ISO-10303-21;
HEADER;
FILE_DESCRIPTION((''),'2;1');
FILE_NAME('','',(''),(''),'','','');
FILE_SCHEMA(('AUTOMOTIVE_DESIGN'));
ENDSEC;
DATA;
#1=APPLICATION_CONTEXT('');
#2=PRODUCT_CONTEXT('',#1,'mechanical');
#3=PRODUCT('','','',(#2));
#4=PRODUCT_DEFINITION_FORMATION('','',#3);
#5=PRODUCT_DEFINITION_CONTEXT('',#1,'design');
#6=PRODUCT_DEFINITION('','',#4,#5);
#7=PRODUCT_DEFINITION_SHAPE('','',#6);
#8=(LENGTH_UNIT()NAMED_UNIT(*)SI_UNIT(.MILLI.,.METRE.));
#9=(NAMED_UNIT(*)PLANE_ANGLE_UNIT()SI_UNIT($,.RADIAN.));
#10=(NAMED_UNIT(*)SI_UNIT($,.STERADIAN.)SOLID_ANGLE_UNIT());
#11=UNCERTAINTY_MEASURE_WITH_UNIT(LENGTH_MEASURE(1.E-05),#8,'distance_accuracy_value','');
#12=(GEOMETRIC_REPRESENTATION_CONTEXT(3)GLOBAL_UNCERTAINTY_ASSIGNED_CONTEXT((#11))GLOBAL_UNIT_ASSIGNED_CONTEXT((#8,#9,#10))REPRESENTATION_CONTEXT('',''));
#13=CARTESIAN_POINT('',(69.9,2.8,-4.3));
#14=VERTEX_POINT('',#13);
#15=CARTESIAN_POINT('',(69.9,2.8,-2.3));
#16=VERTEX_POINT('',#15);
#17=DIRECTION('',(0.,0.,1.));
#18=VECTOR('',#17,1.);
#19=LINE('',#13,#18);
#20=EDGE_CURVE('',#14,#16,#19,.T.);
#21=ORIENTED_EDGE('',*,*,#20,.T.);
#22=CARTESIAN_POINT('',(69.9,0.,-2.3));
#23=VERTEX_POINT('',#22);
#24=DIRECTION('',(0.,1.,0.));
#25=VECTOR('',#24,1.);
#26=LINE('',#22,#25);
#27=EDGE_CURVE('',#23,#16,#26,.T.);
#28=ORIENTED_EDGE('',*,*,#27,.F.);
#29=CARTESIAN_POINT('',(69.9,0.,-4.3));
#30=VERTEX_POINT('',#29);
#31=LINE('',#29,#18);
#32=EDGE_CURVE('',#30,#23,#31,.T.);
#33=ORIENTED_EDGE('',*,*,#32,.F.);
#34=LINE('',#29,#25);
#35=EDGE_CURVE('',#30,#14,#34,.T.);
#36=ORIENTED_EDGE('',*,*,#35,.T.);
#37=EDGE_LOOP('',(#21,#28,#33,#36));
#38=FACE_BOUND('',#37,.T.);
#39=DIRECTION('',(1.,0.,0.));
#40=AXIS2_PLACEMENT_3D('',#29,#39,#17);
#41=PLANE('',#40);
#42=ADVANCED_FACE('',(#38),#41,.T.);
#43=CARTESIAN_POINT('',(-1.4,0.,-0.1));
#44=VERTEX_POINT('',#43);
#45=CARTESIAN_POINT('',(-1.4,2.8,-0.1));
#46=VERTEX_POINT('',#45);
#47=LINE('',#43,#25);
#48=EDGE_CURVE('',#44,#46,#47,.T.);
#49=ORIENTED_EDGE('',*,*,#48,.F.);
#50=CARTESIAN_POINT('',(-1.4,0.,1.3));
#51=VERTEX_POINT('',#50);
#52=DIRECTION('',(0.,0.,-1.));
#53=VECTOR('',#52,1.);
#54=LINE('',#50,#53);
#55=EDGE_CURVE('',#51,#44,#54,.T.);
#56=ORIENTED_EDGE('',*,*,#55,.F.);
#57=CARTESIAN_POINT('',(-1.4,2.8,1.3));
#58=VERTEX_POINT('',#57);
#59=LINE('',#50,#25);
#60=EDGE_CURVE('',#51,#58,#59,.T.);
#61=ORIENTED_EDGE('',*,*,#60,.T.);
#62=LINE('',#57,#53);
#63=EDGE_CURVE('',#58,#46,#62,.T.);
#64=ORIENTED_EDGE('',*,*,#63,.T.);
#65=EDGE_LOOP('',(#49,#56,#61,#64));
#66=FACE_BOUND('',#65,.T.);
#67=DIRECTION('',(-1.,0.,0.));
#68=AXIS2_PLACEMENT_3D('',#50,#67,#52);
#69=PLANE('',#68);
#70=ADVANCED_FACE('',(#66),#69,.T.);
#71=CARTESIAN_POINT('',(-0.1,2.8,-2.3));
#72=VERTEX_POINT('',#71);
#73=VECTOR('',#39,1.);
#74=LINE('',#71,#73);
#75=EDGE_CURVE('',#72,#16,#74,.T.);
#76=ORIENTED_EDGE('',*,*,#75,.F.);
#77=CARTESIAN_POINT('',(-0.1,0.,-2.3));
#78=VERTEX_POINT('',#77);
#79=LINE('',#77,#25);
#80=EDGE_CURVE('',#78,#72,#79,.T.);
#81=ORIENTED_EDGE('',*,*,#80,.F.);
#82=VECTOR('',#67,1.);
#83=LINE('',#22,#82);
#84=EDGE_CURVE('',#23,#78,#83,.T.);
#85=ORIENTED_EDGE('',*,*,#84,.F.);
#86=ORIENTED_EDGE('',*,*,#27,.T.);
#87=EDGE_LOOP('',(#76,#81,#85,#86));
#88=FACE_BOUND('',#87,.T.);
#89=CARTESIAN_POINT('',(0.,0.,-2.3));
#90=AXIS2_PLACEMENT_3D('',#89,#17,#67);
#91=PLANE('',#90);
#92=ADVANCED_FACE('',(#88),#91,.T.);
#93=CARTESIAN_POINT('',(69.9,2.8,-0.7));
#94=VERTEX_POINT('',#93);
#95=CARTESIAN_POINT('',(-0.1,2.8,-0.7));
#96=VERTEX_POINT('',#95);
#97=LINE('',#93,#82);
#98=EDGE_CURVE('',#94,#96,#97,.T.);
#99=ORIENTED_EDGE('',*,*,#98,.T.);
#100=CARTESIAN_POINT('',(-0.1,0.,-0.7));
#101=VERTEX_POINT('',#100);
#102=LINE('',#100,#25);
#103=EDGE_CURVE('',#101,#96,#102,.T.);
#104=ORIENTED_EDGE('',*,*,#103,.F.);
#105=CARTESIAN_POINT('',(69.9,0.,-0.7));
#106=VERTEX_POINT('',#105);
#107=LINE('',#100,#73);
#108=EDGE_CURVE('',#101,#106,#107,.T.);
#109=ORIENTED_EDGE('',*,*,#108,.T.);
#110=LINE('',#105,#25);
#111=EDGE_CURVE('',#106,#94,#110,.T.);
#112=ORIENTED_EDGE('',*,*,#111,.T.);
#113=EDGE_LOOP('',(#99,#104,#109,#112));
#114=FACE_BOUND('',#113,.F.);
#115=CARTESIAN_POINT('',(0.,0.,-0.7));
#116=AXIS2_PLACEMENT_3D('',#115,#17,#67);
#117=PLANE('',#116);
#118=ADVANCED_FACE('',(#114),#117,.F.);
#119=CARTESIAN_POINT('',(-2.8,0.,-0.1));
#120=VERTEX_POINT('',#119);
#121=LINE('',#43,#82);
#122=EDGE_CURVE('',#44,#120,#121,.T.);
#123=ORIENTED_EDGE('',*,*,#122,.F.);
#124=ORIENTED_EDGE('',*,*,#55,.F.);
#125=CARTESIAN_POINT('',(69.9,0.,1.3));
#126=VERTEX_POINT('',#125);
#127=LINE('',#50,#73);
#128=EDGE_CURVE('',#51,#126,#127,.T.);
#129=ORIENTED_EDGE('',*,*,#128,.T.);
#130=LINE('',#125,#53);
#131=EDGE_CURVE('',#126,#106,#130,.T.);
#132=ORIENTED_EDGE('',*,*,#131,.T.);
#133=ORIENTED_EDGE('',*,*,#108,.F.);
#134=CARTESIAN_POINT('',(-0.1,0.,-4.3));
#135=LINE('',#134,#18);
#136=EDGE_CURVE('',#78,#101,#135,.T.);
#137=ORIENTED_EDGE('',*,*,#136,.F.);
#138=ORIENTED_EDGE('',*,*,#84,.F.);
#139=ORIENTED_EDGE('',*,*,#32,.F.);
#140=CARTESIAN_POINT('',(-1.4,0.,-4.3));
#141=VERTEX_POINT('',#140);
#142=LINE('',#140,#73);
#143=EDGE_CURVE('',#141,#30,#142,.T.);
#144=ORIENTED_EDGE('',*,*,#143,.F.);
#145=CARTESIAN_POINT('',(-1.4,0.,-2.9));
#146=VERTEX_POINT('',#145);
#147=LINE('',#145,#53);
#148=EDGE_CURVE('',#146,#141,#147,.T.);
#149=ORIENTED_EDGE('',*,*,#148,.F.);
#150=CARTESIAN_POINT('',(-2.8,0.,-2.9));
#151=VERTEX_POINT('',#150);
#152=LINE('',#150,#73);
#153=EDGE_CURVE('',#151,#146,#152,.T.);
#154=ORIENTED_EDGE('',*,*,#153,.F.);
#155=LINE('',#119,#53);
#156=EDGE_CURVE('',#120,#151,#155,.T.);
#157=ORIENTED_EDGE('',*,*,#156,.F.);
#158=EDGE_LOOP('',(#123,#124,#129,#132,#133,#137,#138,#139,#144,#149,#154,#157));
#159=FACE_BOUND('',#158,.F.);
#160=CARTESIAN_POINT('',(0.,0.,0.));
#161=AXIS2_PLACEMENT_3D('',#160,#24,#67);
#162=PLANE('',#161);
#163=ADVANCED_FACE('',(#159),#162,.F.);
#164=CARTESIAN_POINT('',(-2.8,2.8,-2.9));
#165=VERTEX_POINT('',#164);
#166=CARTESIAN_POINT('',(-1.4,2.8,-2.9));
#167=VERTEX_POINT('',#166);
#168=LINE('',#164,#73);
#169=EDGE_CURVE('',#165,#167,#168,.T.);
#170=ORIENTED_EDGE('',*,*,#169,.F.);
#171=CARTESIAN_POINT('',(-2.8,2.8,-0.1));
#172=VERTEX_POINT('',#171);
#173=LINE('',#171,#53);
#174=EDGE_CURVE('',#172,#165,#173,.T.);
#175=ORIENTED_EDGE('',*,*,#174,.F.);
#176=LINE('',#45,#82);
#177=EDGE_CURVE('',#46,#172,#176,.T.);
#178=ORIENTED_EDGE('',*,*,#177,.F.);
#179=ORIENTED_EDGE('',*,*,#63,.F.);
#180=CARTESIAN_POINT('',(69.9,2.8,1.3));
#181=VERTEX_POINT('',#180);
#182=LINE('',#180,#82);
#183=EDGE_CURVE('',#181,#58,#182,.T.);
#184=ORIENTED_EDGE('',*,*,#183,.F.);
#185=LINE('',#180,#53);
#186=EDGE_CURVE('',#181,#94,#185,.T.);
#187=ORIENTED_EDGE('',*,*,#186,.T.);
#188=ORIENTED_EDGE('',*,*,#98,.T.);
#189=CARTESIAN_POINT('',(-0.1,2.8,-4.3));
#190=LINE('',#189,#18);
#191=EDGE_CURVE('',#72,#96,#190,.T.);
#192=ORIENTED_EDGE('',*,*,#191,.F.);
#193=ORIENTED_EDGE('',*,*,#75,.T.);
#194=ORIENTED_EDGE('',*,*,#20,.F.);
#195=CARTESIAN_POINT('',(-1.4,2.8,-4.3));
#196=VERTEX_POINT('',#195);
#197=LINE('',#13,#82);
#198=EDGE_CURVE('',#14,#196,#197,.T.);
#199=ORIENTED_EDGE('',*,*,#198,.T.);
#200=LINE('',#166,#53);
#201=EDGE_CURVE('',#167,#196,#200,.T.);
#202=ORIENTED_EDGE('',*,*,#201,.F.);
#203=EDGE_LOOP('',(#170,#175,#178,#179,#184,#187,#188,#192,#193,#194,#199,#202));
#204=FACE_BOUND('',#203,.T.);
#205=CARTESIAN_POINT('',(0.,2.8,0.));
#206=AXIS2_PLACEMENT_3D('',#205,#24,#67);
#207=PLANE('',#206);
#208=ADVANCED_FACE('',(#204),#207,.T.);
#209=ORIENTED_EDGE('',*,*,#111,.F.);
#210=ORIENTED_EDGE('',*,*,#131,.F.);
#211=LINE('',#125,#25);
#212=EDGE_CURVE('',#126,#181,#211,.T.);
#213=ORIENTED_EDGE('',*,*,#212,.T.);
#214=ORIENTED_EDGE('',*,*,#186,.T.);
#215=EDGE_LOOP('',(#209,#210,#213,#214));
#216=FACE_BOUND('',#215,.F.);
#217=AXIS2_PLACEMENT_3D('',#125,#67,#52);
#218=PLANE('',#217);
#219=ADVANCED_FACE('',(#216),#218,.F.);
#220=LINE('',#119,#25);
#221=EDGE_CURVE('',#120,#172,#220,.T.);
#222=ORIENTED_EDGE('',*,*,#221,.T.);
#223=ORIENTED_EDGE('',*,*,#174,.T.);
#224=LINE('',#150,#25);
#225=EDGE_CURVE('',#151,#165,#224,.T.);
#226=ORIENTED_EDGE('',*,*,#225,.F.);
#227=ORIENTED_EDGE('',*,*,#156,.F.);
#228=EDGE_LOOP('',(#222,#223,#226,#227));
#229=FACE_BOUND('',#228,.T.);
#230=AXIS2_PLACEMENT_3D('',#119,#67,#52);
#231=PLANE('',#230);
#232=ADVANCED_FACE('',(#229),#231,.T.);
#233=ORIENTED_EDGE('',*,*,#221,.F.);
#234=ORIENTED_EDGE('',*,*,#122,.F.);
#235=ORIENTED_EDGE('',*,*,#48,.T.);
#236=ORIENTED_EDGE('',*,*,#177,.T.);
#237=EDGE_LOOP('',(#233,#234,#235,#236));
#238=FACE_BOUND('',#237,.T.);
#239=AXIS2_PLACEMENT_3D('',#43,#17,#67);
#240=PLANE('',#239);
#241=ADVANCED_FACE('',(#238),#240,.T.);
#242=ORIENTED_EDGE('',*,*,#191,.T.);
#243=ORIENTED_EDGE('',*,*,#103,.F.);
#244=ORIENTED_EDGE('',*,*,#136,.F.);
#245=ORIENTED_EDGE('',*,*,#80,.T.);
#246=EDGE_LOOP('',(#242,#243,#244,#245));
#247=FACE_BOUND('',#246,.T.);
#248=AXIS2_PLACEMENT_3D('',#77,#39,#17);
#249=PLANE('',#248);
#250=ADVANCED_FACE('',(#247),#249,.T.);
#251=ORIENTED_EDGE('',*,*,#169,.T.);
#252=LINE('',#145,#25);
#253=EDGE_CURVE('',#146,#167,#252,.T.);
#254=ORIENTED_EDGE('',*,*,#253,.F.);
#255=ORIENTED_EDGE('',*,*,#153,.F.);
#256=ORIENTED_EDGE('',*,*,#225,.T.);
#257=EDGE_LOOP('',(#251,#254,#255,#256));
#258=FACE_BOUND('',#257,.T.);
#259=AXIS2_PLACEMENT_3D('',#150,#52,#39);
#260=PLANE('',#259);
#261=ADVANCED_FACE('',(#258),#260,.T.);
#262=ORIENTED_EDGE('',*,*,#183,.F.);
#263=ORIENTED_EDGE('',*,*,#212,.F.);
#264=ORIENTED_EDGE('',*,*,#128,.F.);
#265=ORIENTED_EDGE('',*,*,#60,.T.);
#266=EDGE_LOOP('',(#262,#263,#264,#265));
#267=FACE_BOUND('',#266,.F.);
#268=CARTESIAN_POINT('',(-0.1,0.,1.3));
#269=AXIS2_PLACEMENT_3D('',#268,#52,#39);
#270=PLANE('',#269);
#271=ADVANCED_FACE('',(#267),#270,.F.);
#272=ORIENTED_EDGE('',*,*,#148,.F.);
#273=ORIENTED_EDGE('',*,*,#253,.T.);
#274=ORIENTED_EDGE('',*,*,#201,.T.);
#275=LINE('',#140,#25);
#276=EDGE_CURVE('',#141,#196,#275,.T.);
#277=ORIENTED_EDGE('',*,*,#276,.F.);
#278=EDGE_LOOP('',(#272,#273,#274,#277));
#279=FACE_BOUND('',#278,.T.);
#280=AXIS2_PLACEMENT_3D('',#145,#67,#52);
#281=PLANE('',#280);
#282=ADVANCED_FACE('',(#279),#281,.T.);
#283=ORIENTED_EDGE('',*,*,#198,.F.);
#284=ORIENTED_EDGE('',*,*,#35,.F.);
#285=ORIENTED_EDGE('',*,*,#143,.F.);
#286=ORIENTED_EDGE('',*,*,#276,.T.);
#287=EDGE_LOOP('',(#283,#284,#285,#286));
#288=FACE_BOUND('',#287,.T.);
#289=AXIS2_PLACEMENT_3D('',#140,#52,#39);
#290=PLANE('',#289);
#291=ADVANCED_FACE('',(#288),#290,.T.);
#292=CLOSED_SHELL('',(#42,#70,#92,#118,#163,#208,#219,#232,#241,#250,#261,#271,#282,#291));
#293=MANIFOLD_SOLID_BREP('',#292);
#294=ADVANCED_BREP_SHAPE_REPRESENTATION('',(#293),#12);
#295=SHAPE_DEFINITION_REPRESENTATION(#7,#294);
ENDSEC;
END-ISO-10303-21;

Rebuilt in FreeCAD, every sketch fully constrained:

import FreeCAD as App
import Part
import Sketcher

doc = App.newDocument("Part")
body = doc.addObject("PartDesign::Body", "Body")

# Sketch on XZ plane
sketch1 = body.newObject("Sketcher::SketchObject", "Sketch")
sketch1.AttachmentSupport = (doc.getObject("XZ_Plane"), [""])
sketch1.MapMode = "FlatFace"
sketch1.addGeometry([
    Part.LineSegment(App.Vector(69.9, 1.3, 0), App.Vector(69.9, -0.7, 0)),  # 0
    Part.LineSegment(App.Vector(69.9, -0.7, 0), App.Vector(-0.1, -0.7, 0)),  # 1
    Part.LineSegment(App.Vector(-0.1, -0.7, 0), App.Vector(-0.1, -2.3, 0)),  # 2
    Part.LineSegment(App.Vector(-0.1, -2.3, 0), App.Vector(69.9, -2.3, 0)),  # 3
    Part.LineSegment(App.Vector(69.9, -2.3, 0), App.Vector(69.9, -4.3, 0)),  # 4
    Part.LineSegment(App.Vector(69.9, -4.3, 0), App.Vector(-1.4, -4.3, 0)),  # 5
    Part.LineSegment(App.Vector(-1.4, -4.3, 0), App.Vector(-1.4, -2.9, 0)),  # 6
    Part.LineSegment(App.Vector(-1.4, -2.9, 0), App.Vector(-2.8, -2.9, 0)),  # 7
    Part.LineSegment(App.Vector(-2.8, -2.9, 0), App.Vector(-2.8, -0.1, 0)),  # 8
    Part.LineSegment(App.Vector(-2.8, -0.1, 0), App.Vector(-1.4, -0.1, 0)),  # 9
    Part.LineSegment(App.Vector(-1.4, -0.1, 0), App.Vector(-1.4, 1.3, 0)),  # 10
    Part.LineSegment(App.Vector(-1.4, 1.3, 0), App.Vector(69.9, 1.3, 0)),  # 11
], False)
sketch1.addConstraint([
    Sketcher.Constraint("Coincident", 0, 2, 1, 1),
    Sketcher.Constraint("Coincident", 1, 2, 2, 1),
    Sketcher.Constraint("Coincident", 2, 2, 3, 1),
    Sketcher.Constraint("Coincident", 3, 2, 4, 1),
    Sketcher.Constraint("Coincident", 4, 2, 5, 1),
    Sketcher.Constraint("Coincident", 5, 2, 6, 1),
    Sketcher.Constraint("Coincident", 6, 2, 7, 1),
    Sketcher.Constraint("Coincident", 7, 2, 8, 1),
    Sketcher.Constraint("Coincident", 8, 2, 9, 1),
    Sketcher.Constraint("Coincident", 9, 2, 10, 1),
    Sketcher.Constraint("Coincident", 10, 2, 11, 1),
    Sketcher.Constraint("Coincident", 11, 2, 0, 1),
    Sketcher.Constraint("Vertical", 0),
    Sketcher.Constraint("Horizontal", 1),
    Sketcher.Constraint("Vertical", 2),
    Sketcher.Constraint("Horizontal", 3),
    Sketcher.Constraint("Vertical", 4),
    Sketcher.Constraint("Horizontal", 5),
    Sketcher.Constraint("Vertical", 6),
    Sketcher.Constraint("Horizontal", 7),
    Sketcher.Constraint("Vertical", 8),
    Sketcher.Constraint("Horizontal", 9),
    Sketcher.Constraint("Vertical", 10),
    Sketcher.Constraint("Horizontal", 11),
    Sketcher.Constraint("Vertical", 0, 2, 3, 2),
    Sketcher.Constraint("Vertical", 6, 2, 9, 2),
    Sketcher.Constraint("Equal", 0, 4),
    Sketcher.Constraint("Equal", 9, 6),
    Sketcher.Constraint("Equal", 6, 10),
    Sketcher.Constraint("DistanceX", 1, 2, 1, 1, 70.0),
    Sketcher.Constraint("DistanceY", 2, 2, 2, 1, 1.6),
    Sketcher.Constraint("DistanceX", 1, 2, -1, 1, 0.1),
    Sketcher.Constraint("DistanceY", 8, 2, -1, 1, 0.1),
    Sketcher.Constraint("DistanceY", 0, 2, 0, 1, 2.0),
    Sketcher.Constraint("DistanceX", 5, 2, 5, 1, 71.3),
    Sketcher.Constraint("DistanceX", 7, 2, 7, 1, 1.4),
])
pad1 = body.newObject("PartDesign::Pad", "Pad")
pad1.Profile = sketch1
pad1.Length = 2.8
pad1.Reversed = True

doc.recompute()
